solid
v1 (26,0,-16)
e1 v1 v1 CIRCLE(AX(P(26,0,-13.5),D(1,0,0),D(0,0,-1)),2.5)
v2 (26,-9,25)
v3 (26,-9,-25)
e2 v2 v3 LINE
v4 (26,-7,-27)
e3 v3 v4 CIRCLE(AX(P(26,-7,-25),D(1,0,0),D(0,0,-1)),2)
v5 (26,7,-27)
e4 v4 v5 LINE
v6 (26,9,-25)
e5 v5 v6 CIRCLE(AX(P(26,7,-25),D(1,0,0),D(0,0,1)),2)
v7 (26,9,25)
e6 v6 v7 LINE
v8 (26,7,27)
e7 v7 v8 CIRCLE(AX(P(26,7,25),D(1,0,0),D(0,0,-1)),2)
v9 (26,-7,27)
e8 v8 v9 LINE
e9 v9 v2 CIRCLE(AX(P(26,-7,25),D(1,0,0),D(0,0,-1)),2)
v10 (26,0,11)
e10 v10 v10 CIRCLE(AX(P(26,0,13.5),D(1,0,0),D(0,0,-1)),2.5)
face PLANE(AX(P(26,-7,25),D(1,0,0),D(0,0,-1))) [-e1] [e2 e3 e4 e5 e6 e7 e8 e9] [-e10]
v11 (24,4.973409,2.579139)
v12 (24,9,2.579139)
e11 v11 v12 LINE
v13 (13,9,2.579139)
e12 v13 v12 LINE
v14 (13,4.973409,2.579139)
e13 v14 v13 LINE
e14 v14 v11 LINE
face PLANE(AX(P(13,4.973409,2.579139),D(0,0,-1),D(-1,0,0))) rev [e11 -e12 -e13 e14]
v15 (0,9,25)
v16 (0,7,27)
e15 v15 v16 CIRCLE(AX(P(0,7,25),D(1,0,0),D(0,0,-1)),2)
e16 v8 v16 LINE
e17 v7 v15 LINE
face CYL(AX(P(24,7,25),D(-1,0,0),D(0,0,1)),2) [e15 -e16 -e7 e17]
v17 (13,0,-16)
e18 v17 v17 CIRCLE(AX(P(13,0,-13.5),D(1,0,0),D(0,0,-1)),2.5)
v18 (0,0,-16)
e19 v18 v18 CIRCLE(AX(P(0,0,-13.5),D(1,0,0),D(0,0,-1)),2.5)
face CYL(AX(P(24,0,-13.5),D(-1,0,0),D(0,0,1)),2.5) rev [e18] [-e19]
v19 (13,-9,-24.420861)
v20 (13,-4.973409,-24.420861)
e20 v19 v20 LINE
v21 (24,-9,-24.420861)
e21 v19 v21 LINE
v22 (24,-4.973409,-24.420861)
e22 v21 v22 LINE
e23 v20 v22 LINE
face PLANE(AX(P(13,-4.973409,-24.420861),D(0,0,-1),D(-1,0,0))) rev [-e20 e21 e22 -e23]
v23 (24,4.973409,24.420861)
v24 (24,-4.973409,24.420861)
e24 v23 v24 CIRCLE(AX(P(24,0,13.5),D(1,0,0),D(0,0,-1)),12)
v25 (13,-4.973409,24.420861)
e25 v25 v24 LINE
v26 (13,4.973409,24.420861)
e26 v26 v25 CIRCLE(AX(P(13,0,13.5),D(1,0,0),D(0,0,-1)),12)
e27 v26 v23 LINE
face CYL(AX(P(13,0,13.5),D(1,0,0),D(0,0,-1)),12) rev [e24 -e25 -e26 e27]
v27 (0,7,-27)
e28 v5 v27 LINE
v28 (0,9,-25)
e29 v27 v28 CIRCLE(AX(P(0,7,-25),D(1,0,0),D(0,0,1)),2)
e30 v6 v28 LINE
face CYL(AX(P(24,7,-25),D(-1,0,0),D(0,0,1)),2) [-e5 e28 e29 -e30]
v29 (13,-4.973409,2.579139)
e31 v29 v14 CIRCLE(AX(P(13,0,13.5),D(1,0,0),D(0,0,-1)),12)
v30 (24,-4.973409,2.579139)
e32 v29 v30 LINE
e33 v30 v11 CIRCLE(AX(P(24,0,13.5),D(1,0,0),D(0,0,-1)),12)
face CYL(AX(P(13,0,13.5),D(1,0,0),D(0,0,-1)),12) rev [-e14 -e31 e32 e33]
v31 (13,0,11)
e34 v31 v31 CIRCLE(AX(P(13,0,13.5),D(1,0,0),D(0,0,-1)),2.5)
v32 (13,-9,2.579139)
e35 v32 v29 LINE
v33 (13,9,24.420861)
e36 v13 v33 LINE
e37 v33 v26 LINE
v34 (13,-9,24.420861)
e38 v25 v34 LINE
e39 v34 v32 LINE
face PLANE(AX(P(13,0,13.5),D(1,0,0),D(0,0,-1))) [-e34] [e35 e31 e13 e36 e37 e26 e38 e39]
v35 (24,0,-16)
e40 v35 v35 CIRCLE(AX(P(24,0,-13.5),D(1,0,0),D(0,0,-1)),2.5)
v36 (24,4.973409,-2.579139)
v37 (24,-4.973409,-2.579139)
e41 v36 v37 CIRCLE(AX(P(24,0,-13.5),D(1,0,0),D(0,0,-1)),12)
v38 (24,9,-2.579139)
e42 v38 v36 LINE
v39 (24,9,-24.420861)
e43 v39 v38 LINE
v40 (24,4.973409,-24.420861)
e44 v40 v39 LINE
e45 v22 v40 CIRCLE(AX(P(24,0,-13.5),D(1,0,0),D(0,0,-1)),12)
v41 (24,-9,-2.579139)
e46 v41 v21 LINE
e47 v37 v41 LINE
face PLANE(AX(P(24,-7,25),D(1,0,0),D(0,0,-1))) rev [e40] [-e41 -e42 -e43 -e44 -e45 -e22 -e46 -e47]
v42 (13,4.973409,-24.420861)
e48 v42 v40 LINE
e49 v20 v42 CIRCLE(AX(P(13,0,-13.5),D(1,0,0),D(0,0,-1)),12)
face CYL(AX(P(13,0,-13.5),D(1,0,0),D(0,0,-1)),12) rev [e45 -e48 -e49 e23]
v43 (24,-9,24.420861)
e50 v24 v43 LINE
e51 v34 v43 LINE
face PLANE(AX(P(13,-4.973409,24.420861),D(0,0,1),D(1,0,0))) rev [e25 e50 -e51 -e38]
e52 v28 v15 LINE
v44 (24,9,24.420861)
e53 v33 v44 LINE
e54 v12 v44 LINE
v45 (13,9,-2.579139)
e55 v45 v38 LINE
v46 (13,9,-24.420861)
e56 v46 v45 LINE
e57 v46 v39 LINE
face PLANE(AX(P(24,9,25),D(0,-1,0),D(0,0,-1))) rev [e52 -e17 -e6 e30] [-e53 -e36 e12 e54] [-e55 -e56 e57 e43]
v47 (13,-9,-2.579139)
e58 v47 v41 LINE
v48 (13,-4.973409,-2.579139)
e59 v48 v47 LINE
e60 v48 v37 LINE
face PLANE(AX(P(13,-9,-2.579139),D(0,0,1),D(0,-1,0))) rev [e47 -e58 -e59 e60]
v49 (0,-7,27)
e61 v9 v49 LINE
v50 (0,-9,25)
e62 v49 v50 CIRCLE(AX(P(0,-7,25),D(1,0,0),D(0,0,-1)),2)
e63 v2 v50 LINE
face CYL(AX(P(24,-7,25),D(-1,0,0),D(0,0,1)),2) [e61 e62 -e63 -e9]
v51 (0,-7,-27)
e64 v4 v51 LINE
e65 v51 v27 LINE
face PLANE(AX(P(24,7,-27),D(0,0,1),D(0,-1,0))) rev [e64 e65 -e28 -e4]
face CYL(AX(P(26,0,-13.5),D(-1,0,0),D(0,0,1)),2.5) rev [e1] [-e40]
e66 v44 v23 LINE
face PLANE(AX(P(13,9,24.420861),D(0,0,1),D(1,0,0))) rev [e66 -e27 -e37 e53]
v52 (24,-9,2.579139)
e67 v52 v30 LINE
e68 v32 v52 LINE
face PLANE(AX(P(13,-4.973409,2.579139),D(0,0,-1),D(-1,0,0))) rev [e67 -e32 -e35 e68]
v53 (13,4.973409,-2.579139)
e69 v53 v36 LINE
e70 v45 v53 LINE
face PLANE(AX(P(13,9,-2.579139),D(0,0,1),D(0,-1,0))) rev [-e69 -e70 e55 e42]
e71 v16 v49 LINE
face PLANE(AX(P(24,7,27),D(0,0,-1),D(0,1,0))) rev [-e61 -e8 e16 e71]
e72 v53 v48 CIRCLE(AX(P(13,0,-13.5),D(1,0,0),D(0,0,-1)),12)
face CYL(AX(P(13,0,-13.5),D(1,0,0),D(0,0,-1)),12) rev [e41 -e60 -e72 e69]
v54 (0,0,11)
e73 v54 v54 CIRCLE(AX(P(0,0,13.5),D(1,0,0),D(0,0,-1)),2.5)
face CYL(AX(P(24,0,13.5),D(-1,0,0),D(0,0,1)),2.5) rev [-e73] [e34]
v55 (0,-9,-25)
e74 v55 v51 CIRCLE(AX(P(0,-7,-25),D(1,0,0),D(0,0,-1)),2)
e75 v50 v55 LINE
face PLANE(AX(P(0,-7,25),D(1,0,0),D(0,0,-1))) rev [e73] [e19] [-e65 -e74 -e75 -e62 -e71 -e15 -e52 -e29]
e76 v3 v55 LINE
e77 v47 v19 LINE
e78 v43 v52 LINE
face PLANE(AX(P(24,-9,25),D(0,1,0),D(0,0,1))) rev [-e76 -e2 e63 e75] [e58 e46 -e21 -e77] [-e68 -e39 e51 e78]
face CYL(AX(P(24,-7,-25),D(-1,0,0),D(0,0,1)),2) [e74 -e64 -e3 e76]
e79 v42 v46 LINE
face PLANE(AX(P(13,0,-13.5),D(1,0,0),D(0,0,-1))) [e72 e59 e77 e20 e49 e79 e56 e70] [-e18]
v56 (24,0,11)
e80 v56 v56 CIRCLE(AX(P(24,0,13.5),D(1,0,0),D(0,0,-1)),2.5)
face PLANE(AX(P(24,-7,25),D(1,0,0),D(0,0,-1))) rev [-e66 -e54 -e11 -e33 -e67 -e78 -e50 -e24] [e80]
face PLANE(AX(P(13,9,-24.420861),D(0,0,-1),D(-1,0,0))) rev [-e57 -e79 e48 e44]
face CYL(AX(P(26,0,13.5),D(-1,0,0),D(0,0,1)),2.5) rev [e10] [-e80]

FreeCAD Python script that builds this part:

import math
import FreeCAD as App
import Part
import Sketcher

doc = App.newDocument("Part")
body = doc.addObject("PartDesign::Body", "Body")

# Sketch on YZ plane
sketch1 = body.newObject("Sketcher::SketchObject", "Sketch")
sketch1.AttachmentSupport = (doc.getObject("YZ_Plane"), [""])
sketch1.MapMode = "FlatFace"
sketch1.addGeometry([
    Part.LineSegment(App.Vector(9, -25, 0), App.Vector(9, 25, 0)),  # 0
    Part.ArcOfCircle(Part.Circle(App.Vector(7, 25, 0), App.Vector(0, 0, 1), 2), math.radians(0), math.radians(90)),  # 1
    Part.LineSegment(App.Vector(7, 27, 0), App.Vector(-7, 27, 0)),  # 2
    Part.ArcOfCircle(Part.Circle(App.Vector(-7, 25, 0), App.Vector(0, 0, 1), 2), math.radians(90), math.radians(180)),  # 3
    Part.LineSegment(App.Vector(-9, 25, 0), App.Vector(-9, -25, 0)),  # 4
    Part.ArcOfCircle(Part.Circle(App.Vector(-7, -25, 0), App.Vector(0, 0, 1), 2), math.radians(-180), math.radians(-90)),  # 5
    Part.LineSegment(App.Vector(-7, -27, 0), App.Vector(7, -27, 0)),  # 6
    Part.ArcOfCircle(Part.Circle(App.Vector(7, -25, 0), App.Vector(0, 0, 1), 2), math.radians(-90), math.radians(0)),  # 7
    Part.Circle(App.Vector(0, -13.5, 0), App.Vector(0, 0, 1), 2.5),  # 8
    Part.Circle(App.Vector(0, 13.5, 0), App.Vector(0, 0, 1), 2.5),  # 9
], False)
sketch1.addConstraint([
    Sketcher.Constraint("Tangent", 0, 2, 1, 1),
    Sketcher.Constraint("Tangent", 1, 2, 2, 1),
    Sketcher.Constraint("Tangent", 2, 2, 3, 1),
    Sketcher.Constraint("Tangent", 3, 2, 4, 1),
    Sketcher.Constraint("Tangent", 4, 2, 5, 1),
    Sketcher.Constraint("Tangent", 5, 2, 6, 1),
    Sketcher.Constraint("Tangent", 6, 2, 7, 1),
    Sketcher.Constraint("Tangent", 7, 2, 0, 1),
    Sketcher.Constraint("Vertical", 0),
    Sketcher.Constraint("Horizontal", 2),
    Sketcher.Constraint("Vertical", 4),
    Sketcher.Constraint("Horizontal", 6),
    Sketcher.Constraint("Equal", 1, 3),
    Sketcher.Constraint("Equal", 3, 5),
    Sketcher.Constraint("Equal", 5, 7),
    Sketcher.Constraint("Equal", 8, 9),
    Sketcher.Constraint("Symmetric", 1, 3, 5, 3, -1, 1),
    Sketcher.Constraint("Symmetric", 8, 3, 9, 3, -1, 1),
    Sketcher.Constraint("PointOnObject", 8, 3, -2),
    Sketcher.Constraint("Diameter", 8, 5.0),
    Sketcher.Constraint("Radius", 1, 2.0),
    Sketcher.Constraint("DistanceX", 2, 2, 2, 1, 14.0),
    Sketcher.Constraint("DistanceY", 0, 1, 0, 2, 50.0),
    Sketcher.Constraint("DistanceY", 8, 3, 9, 3, 27.0),
])
pad1 = body.newObject("PartDesign::Pad", "Pad")
pad1.Profile = sketch1
pad1.Length = 24

# Sketch on YZ plane
sketch2 = body.newObject("Sketcher::SketchObject", "Sketch001")
sketch2.AttachmentSupport = (doc.getObject("YZ_Plane"), [""])
sketch2.MapMode = "FlatFace"
sketch2.AttachmentOffset = App.Placement(App.Vector(0, 0, 24), App.Rotation())
sketch2.addGeometry([
    Part.LineSegment(App.Vector(9, 24.4, 0), App.Vector(5, 24.4, 0)),  # 0
    Part.ArcOfCircle(Part.Circle(App.Vector(0, 13.5, 0), App.Vector(0, 0, 1), 12), math.radians(66), math.radians(114)),  # 1
    Part.LineSegment(App.Vector(-5, 24.4, 0), App.Vector(-9, 24.4, 0)),  # 2
    Part.LineSegment(App.Vector(-9, 24.4, 0), App.Vector(-9, 2.6, 0)),  # 3
    Part.LineSegment(App.Vector(-9, 2.6, 0), App.Vector(-5, 2.6, 0)),  # 4
    Part.ArcOfCircle(Part.Circle(App.Vector(0, 13.5, 0), App.Vector(0, 0, 1), 12), math.radians(-114), math.radians(-66)),  # 5
    Part.LineSegment(App.Vector(5, 2.6, 0), App.Vector(9, 2.6, 0)),  # 6
    Part.LineSegment(App.Vector(9, 2.6, 0), App.Vector(9, 24.4, 0)),  # 7
    Part.LineSegment(App.Vector(-9, -24.4, 0), App.Vector(-5, -24.4, 0)),  # 8
    Part.ArcOfCircle(Part.Circle(App.Vector(0, -13.5, 0), App.Vector(0, 0, 1), 12), math.radians(-114), math.radians(-66)),  # 9
    Part.LineSegment(App.Vector(5, -24.4, 0), App.Vector(9, -24.4, 0)),  # 10
    Part.LineSegment(App.Vector(9, -24.4, 0), App.Vector(9, -2.6, 0)),  # 11
    Part.LineSegment(App.Vector(9, -2.6, 0), App.Vector(5, -2.6, 0)),  # 12
    Part.ArcOfCircle(Part.Circle(App.Vector(0, -13.5, 0), App.Vector(0, 0, 1), 12), math.radians(66), math.radians(114)),  # 13
    Part.LineSegment(App.Vector(-5, -2.6, 0), App.Vector(-9, -2.6, 0)),  # 14
    Part.LineSegment(App.Vector(-9, -2.6, 0), App.Vector(-9, -24.4, 0)),  # 15
], False)
sketch2.addConstraint([
    Sketcher.Constraint("Coincident", 0, 2, 1, 1),
    Sketcher.Constraint("Coincident", 1, 2, 2, 1),
    Sketcher.Constraint("Coincident", 2, 2, 3, 1),
    Sketcher.Constraint("Coincident", 3, 2, 4, 1),
    Sketcher.Constraint("Coincident", 4, 2, 5, 1),
    Sketcher.Constraint("Coincident", 5, 2, 6, 1),
    Sketcher.Constraint("Coincident", 6, 2, 7, 1),
    Sketcher.Constraint("Coincident", 7, 2, 0, 1),
    Sketcher.Constraint("Coincident", 8, 2, 9, 1),
    Sketcher.Constraint("Coincident", 9, 2, 10, 1),
    Sketcher.Constraint("Coincident", 10, 2, 11, 1),
    Sketcher.Constraint("Coincident", 11, 2, 12, 1),
    Sketcher.Constraint("Coincident", 12, 2, 13, 1),
    Sketcher.Constraint("Coincident", 13, 2, 14, 1),
    Sketcher.Constraint("Coincident", 14, 2, 15, 1),
    Sketcher.Constraint("Coincident", 15, 2, 8, 1),
    Sketcher.Constraint("Horizontal", 0),
    Sketcher.Constraint("Horizontal", 2),
    Sketcher.Constraint("Vertical", 3),
    Sketcher.Constraint("Horizontal", 4),
    Sketcher.Constraint("Horizontal", 6),
    Sketcher.Constraint("Vertical", 7),
    Sketcher.Constraint("Horizontal", 8),
    Sketcher.Constraint("Horizontal", 10),
    Sketcher.Constraint("Vertical", 11),
    Sketcher.Constraint("Horizontal", 12),
    Sketcher.Constraint("Horizontal", 14),
    Sketcher.Constraint("Vertical", 15),
    Sketcher.Constraint("Coincident", 5, 3, 1, 3),
    Sketcher.Constraint("Coincident", 13, 3, 9, 3),
    Sketcher.Constraint("Equal", 1, 5),
    Sketcher.Constraint("Equal", 5, 9),
    Sketcher.Constraint("Equal", 9, 13),
    Sketcher.Constraint("Symmetric", 1, 3, 9, 3, -1, 1),
    Sketcher.Constraint("Symmetric", 2, 2, 10, 2, -1, 1),
    Sketcher.Constraint("Symmetric", 6, 2, 14, 2, -1, 1),
    Sketcher.Constraint("Symmetric", 0, 2, 1, 2, -2),
    Sketcher.Constraint("Symmetric", 3, 2, 6, 2, -2),
    Sketcher.Constraint("Horizontal", 8, 2, 9, 2),
    Sketcher.Constraint("Horizontal", 12, 2, 13, 2),
    Sketcher.Constraint("Vertical", 1, 2, 4, 2),
    Sketcher.Constraint("Radius", 1, 12.0),
    Sketcher.Constraint("DistanceX", 2, 2, -1, 1, 9.0),
    Sketcher.Constraint("DistanceY", 9, 3, 1, 3, 27.0),
    Sketcher.Constraint("DistanceX", 0, 2, 0, 1, 4.026591),
])
pocket1 = body.newObject("PartDesign::Pocket", "Pocket")
pocket1.Profile = sketch2
pocket1.Length = 11

# Sketch on YZ plane
sketch3 = body.newObject("Sketcher::SketchObject", "Sketch002")
sketch3.AttachmentSupport = (doc.getObject("YZ_Plane"), [""])
sketch3.MapMode = "FlatFace"
sketch3.AttachmentOffset = App.Placement(App.Vector(0, 0, 24), App.Rotation())
sketch3.addGeometry([
    Part.LineSegment(App.Vector(9, -25, 0), App.Vector(9, 25, 0)),  # 0
    Part.ArcOfCircle(Part.Circle(App.Vector(7, 25, 0), App.Vector(0, 0, 1), 2), math.radians(0), math.radians(90)),  # 1
    Part.LineSegment(App.Vector(7, 27, 0), App.Vector(-7, 27, 0)),  # 2
    Part.ArcOfCircle(Part.Circle(App.Vector(-7, 25, 0), App.Vector(0, 0, 1), 2), math.radians(90), math.radians(180)),  # 3
    Part.LineSegment(App.Vector(-9, 25, 0), App.Vector(-9, -25, 0)),  # 4
    Part.ArcOfCircle(Part.Circle(App.Vector(-7, -25, 0), App.Vector(0, 0, 1), 2), math.radians(-180), math.radians(-90)),  # 5
    Part.LineSegment(App.Vector(-7, -27, 0), App.Vector(7, -27, 0)),  # 6
    Part.ArcOfCircle(Part.Circle(App.Vector(7, -25, 0), App.Vector(0, 0, 1), 2), math.radians(-90), math.radians(0)),  # 7
    Part.Circle(App.Vector(0, -13.5, 0), App.Vector(0, 0, 1), 2.5),  # 8
    Part.Circle(App.Vector(0, 13.5, 0), App.Vector(0, 0, 1), 2.5),  # 9
], False)
sketch3.addConstraint([
    Sketcher.Constraint("Tangent", 0, 2, 1, 1),
    Sketcher.Constraint("Tangent", 1, 2, 2, 1),
    Sketcher.Constraint("Tangent", 2, 2, 3, 1),
    Sketcher.Constraint("Tangent", 3, 2, 4, 1),
    Sketcher.Constraint("Tangent", 4, 2, 5, 1),
    Sketcher.Constraint("Tangent", 5, 2, 6, 1),
    Sketcher.Constraint("Tangent", 6, 2, 7, 1),
    Sketcher.Constraint("Tangent", 7, 2, 0, 1),
    Sketcher.Constraint("Vertical", 0),
    Sketcher.Constraint("Horizontal", 2),
    Sketcher.Constraint("Vertical", 4),
    Sketcher.Constraint("Horizontal", 6),
    Sketcher.Constraint("Equal", 1, 3),
    Sketcher.Constraint("Equal", 3, 5),
    Sketcher.Constraint("Equal", 5, 7),
    Sketcher.Constraint("Equal", 8, 9),
    Sketcher.Constraint("Symmetric", 1, 3, 5, 3, -1, 1),
    Sketcher.Constraint("Symmetric", 8, 3, 9, 3, -1, 1),
    Sketcher.Constraint("PointOnObject", 8, 3, -2),
    Sketcher.Constraint("Diameter", 8, 5.0),
    Sketcher.Constraint("Radius", 1, 2.0),
    Sketcher.Constraint("DistanceX", 2, 2, 2, 1, 14.0),
    Sketcher.Constraint("DistanceY", 0, 1, 0, 2, 50.0),
    Sketcher.Constraint("DistanceY", 8, 3, 9, 3, 27.0),
])
pad2 = body.newObject("PartDesign::Pad", "Pad001")
pad2.Profile = sketch3
pad2.Length = 2

doc.recompute()
